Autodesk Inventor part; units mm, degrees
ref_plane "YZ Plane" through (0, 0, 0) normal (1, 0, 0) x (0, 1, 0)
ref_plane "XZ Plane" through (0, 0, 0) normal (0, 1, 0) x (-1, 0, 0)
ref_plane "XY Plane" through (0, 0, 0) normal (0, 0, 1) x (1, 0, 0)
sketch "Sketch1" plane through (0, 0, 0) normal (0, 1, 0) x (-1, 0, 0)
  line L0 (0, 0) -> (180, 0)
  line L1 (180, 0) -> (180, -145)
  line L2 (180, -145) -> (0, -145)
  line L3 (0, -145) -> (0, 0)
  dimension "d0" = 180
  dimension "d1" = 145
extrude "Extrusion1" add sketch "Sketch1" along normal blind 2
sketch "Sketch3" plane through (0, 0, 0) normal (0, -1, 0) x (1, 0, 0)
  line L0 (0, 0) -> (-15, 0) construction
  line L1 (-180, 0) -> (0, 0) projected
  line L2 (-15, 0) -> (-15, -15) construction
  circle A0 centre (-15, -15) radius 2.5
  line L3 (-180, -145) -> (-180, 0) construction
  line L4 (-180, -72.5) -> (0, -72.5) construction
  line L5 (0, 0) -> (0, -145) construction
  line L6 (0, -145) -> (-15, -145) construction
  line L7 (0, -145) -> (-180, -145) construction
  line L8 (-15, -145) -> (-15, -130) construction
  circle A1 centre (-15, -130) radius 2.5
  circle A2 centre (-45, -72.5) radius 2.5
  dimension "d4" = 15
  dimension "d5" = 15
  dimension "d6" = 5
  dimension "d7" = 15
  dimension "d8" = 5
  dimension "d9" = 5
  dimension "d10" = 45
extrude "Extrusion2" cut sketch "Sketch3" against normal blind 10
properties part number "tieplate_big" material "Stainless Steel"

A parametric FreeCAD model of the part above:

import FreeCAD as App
import Part
import Sketcher

V = App.Vector
Q = App.Units.Quantity

doc = App.newDocument("Part")
body = doc.addObject("PartDesign::Body", "Body")

# Sketch on XZ plane
sketch1 = doc.addObject("Sketcher::SketchObject", "Sketch")
body.addObject(sketch1)
sketch1.AttachmentSupport = (doc.XZ_Plane, [""])
sketch1.MapMode = "FlatFace"
sketch1.addGeometry([
    Part.LineSegment(V(-180, 0, 0), V(0, 0, 0)),
    Part.LineSegment(V(0, 0, 0), V(0, -145, 0)),
    Part.LineSegment(V(0, -145, 0), V(-180, -145, 0)),
    Part.LineSegment(V(-180, -145, 0), V(-180, 0, 0)),
], False)
sketch1.addConstraint([
    Sketcher.Constraint("Coincident", 0, 2, 1, 1),
    Sketcher.Constraint("Coincident", 1, 2, 2, 1),
    Sketcher.Constraint("Coincident", 2, 2, 3, 1),
    Sketcher.Constraint("Coincident", 3, 2, 0, 1),
    Sketcher.Constraint("Horizontal", 0),
    Sketcher.Constraint("Vertical", 1),
    Sketcher.Constraint("Horizontal", 2),
    Sketcher.Constraint("Vertical", 3),
    Sketcher.Constraint("Coincident", 0, 2, -1, 1),
    Sketcher.Constraint("DistanceX", 0, 1, 0, 2, Q("180 mm")),
    Sketcher.Constraint("DistanceY", 1, 2, 1, 1, Q("145 mm")),
])
pad1 = doc.addObject("PartDesign::Pad", "Pad")
body.addObject(pad1)
pad1.Profile = sketch1
pad1.Length = 2
pad1.Reversed = True

# Sketch on XZ plane
sketch2 = doc.addObject("Sketcher::SketchObject", "Sketch001")
body.addObject(sketch2)
sketch2.AttachmentSupport = (doc.XZ_Plane, [""])
sketch2.MapMode = "FlatFace"
sketch2.addGeometry([
    Part.Circle(V(-15, -15, 0), V(0, 0, 1), 2.5),
    Part.Circle(V(-15, -130, 0), V(0, 0, 1), 2.5),
    Part.Circle(V(-45, -72.5, 0), V(0, 0, 1), 2.5),
], False)
sketch2.addConstraint([
    Sketcher.Constraint("Equal", 0, 1),
    Sketcher.Constraint("Equal", 1, 2),
    Sketcher.Constraint("Vertical", 0, 3, 1, 3),
    Sketcher.Constraint("Diameter", 0, Q("5 mm")),
    Sketcher.Constraint("DistanceX", 0, 3, -1, 1, Q("15 mm")),
    Sketcher.Constraint("DistanceY", 0, 3, -1, 1, Q("15 mm")),
    Sketcher.Constraint("DistanceX", 2, 3, -1, 1, Q("45 mm")),
    Sketcher.Constraint("DistanceY", 1, 3, -1, 1, Q("130 mm")),
    Sketcher.Constraint("DistanceY", 2, 3, -1, 1, Q("72.5 mm")),
])
pocket1 = doc.addObject("PartDesign::Pocket", "Pocket")
body.addObject(pocket1)
pocket1.Profile = sketch2
pocket1.Length = 10

doc.recompute()
